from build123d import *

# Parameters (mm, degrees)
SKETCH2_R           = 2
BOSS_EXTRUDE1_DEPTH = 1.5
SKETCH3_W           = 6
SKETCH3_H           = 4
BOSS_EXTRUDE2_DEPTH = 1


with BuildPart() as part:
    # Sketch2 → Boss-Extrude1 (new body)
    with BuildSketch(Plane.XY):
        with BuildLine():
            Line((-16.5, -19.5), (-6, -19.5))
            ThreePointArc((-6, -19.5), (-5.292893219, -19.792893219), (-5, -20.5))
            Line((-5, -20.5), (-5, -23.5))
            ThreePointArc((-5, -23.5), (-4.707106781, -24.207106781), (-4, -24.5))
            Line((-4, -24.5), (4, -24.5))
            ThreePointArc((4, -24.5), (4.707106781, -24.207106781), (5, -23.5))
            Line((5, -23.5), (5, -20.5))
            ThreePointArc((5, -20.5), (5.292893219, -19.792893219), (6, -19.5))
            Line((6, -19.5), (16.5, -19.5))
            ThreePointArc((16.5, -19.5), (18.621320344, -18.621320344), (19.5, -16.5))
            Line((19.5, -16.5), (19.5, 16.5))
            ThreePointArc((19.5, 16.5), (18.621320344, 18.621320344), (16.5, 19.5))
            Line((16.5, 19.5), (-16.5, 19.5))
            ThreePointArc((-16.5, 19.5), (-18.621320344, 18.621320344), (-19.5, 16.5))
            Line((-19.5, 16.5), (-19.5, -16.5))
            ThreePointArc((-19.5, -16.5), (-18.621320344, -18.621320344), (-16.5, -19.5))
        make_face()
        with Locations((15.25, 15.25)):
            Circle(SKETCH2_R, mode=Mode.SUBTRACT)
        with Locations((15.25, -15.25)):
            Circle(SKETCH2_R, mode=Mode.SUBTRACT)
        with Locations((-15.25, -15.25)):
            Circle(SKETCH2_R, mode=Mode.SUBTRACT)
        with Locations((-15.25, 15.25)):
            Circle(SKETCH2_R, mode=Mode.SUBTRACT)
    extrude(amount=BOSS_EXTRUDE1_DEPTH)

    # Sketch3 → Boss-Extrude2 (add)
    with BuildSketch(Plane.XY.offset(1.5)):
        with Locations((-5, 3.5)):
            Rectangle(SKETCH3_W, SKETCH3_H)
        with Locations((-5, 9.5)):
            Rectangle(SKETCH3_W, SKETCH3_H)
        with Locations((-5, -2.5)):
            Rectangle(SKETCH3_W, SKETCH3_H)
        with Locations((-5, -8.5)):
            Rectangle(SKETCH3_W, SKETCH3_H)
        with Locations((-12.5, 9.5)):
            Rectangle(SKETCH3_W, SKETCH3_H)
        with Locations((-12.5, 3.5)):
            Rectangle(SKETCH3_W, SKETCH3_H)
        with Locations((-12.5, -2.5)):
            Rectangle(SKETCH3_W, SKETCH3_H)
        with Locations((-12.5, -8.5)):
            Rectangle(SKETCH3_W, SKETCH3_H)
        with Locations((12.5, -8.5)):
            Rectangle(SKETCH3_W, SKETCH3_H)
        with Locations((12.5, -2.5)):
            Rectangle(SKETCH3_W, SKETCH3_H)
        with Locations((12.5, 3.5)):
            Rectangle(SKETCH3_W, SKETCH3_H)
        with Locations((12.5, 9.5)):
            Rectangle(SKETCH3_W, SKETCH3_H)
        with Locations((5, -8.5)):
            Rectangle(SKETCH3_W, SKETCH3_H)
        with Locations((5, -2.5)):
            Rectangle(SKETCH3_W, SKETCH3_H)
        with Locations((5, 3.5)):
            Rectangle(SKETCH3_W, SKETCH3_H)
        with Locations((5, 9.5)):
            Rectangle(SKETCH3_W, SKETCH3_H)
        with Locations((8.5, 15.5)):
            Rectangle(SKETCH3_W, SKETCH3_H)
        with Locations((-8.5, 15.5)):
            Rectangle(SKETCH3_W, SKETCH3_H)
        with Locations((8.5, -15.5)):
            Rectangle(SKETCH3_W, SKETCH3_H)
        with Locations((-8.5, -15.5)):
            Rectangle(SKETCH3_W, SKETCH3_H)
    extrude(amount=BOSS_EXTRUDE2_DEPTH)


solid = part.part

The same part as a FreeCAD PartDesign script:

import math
import FreeCAD as App
import Part
import Sketcher
Q = App.Units.Quantity


def add_polygon(sketch, points):
    """Adds a closed chain of lines whose ends are joined by coincident constraints."""
    first, n = sketch.GeometryCount, len(points)
    for a, b in zip(points, points[1:] + points[:1]):
        sketch.addGeometry(Part.LineSegment(App.Vector(*a, 0), App.Vector(*b, 0)), False)
    for i in range(n):
        sketch.addConstraint(Sketcher.Constraint("Coincident", first + i, 2, first + (i + 1) % n, 1))

doc = App.newDocument("Part")
body = doc.addObject("PartDesign::Body", "Body")

# Sketch on XY plane
sketch1 = body.newObject("Sketcher::SketchObject", "Sketch")
sketch1.AttachmentSupport = (doc.getObject("XY_Plane"), [""])
sketch1.MapMode = "FlatFace"
sketch1.addGeometry(Part.LineSegment(App.Vector(-16.5, -19.5, 0), App.Vector(-6, -19.5, 0)), False)
sketch1.addGeometry(Part.ArcOfCircle(Part.Circle(App.Vector(-6, -20.5, 0), App.Vector(0, 0, 1), 1), math.radians(0), math.radians(90)), False)
sketch1.addGeometry(Part.LineSegment(App.Vector(-5, -20.5, 0), App.Vector(-5, -23.5, 0)), False)
sketch1.addGeometry(Part.ArcOfCircle(Part.Circle(App.Vector(-4, -23.5, 0), App.Vector(0, 0, 1), 1), math.radians(-180), math.radians(-90)), False)
sketch1.addGeometry(Part.LineSegment(App.Vector(-4, -24.5, 0), App.Vector(4, -24.5, 0)), False)
sketch1.addGeometry(Part.ArcOfCircle(Part.Circle(App.Vector(4, -23.5, 0), App.Vector(0, 0, 1), 1), math.radians(-90), math.radians(0)), False)
sketch1.addGeometry(Part.LineSegment(App.Vector(5, -23.5, 0), App.Vector(5, -20.5, 0)), False)
sketch1.addGeometry(Part.ArcOfCircle(Part.Circle(App.Vector(6, -20.5, 0), App.Vector(0, 0, 1), 1), math.radians(90), math.radians(180)), False)
sketch1.addGeometry(Part.LineSegment(App.Vector(6, -19.5, 0), App.Vector(16.5, -19.5, 0)), False)
sketch1.addGeometry(Part.ArcOfCircle(Part.Circle(App.Vector(16.5, -16.5, 0), App.Vector(0, 0, 1), 3), math.radians(-90), math.radians(0)), False)
sketch1.addGeometry(Part.LineSegment(App.Vector(19.5, -16.5, 0), App.Vector(19.5, 16.5, 0)), False)
sketch1.addGeometry(Part.ArcOfCircle(Part.Circle(App.Vector(16.5, 16.5, 0), App.Vector(0, 0, 1), 3), math.radians(0), math.radians(90)), False)
sketch1.addGeometry(Part.LineSegment(App.Vector(16.5, 19.5, 0), App.Vector(-16.5, 19.5, 0)), False)
sketch1.addGeometry(Part.ArcOfCircle(Part.Circle(App.Vector(-16.5, 16.5, 0), App.Vector(0, 0, 1), 3), math.radians(90), math.radians(180)), False)
sketch1.addGeometry(Part.LineSegment(App.Vector(-19.5, 16.5, 0), App.Vector(-19.5, -16.5, 0)), False)
sketch1.addGeometry(Part.ArcOfCircle(Part.Circle(App.Vector(-16.5, -16.5, 0), App.Vector(0, 0, 1), 3), math.radians(180), math.radians(270)), False)
sketch1.addGeometry(Part.Circle(App.Vector(-15.25, -15.25, 0), App.Vector(0, 0, 1), 2), False)
sketch1.addGeometry(Part.Circle(App.Vector(15.25, -15.25, 0), App.Vector(0, 0, 1), 2), False)
sketch1.addGeometry(Part.Circle(App.Vector(-15.25, 15.25, 0), App.Vector(0, 0, 1), 2), False)
sketch1.addGeometry(Part.Circle(App.Vector(15.25, 15.25, 0), App.Vector(0, 0, 1), 2), False)
sketch1.addConstraint(Sketcher.Constraint("Tangent", 0, 2, 1, 2))
sketch1.addConstraint(Sketcher.Constraint("Tangent", 1, 1, 2, 1))
sketch1.addConstraint(Sketcher.Constraint("Tangent", 2, 2, 3, 1))
sketch1.addConstraint(Sketcher.Constraint("Tangent", 3, 2, 4, 1))
sketch1.addConstraint(Sketcher.Constraint("Tangent", 4, 2, 5, 1))
sketch1.addConstraint(Sketcher.Constraint("Tangent", 5, 2, 6, 1))
sketch1.addConstraint(Sketcher.Constraint("Tangent", 6, 2, 7, 2))
sketch1.addConstraint(Sketcher.Constraint("Tangent", 7, 1, 8, 1))
sketch1.addConstraint(Sketcher.Constraint("Tangent", 8, 2, 9, 1))
sketch1.addConstraint(Sketcher.Constraint("Tangent", 9, 2, 10, 1))
sketch1.addConstraint(Sketcher.Constraint("Tangent", 10, 2, 11, 1))
sketch1.addConstraint(Sketcher.Constraint("Tangent", 11, 2, 12, 1))
sketch1.addConstraint(Sketcher.Constraint("Tangent", 12, 2, 13, 1))
sketch1.addConstraint(Sketcher.Constraint("Tangent", 13, 2, 14, 1))
sketch1.addConstraint(Sketcher.Constraint("Tangent", 14, 2, 15, 1))
sketch1.addConstraint(Sketcher.Constraint("Tangent", 15, 2, 0, 1))
sketch1.addConstraint(Sketcher.Constraint("Horizontal", 0))
sketch1.addConstraint(Sketcher.Constraint("Vertical", 2))
sketch1.addConstraint(Sketcher.Constraint("Horizontal", 4))
sketch1.addConstraint(Sketcher.Constraint("Vertical", 6))
sketch1.addConstraint(Sketcher.Constraint("Horizontal", 8))
sketch1.addConstraint(Sketcher.Constraint("Vertical", 10))
sketch1.addConstraint(Sketcher.Constraint("Horizontal", 12))
sketch1.addConstraint(Sketcher.Constraint("Vertical", 14))
sketch1.addConstraint(Sketcher.Constraint("Equal", 1, 3))
sketch1.addConstraint(Sketcher.Constraint("Equal", 3, 5))
sketch1.addConstraint(Sketcher.Constraint("Equal", 5, 7))
sketch1.addConstraint(Sketcher.Constraint("Equal", 9, 11))
sketch1.addConstraint(Sketcher.Constraint("Equal", 11, 13))
sketch1.addConstraint(Sketcher.Constraint("Equal", 13, 15))
sketch1.addConstraint(Sketcher.Constraint("Equal", 16, 17))
sketch1.addConstraint(Sketcher.Constraint("Equal", 17, 18))
sketch1.addConstraint(Sketcher.Constraint("Equal", 18, 19))
sketch1.addConstraint(Sketcher.Constraint("Symmetric", 9, 3, 13, 3, -1, 1))
sketch1.addConstraint(Sketcher.Constraint("Symmetric", 17, 3, 18, 3, -1, 1))
sketch1.addConstraint(Sketcher.Constraint("Symmetric", 16, 3, 19, 3, -1, 1))
sketch1.addConstraint(Sketcher.Constraint("Symmetric", 1, 3, 7, 3, -2))
sketch1.addConstraint(Sketcher.Constraint("Symmetric", 16, 3, 17, 3, -2))
sketch1.addConstraint(Sketcher.Constraint("Equal", 12, 10))
sketch1.addConstraint(Sketcher.Constraint("Diameter", 16, Q("4 mm")))
sketch1.addConstraint(Sketcher.Constraint("Radius", 1, Q("1 mm")))
sketch1.addConstraint(Sketcher.Constraint("Radius", 9, Q("3 mm")))
sketch1.addConstraint(Sketcher.Constraint("DistanceX", 4, 1, 4, 2, Q("8 mm")))
sketch1.addConstraint(Sketcher.Constraint("DistanceX", 12, 2, 12, 1, Q("33 mm")))
sketch1.addConstraint(Sketcher.Constraint("DistanceY", 2, 2, 2, 1, Q("3 mm")))
sketch1.addConstraint(Sketcher.Constraint("DistanceY", 16, 3, 18, 3, Q("30.5 mm")))
sketch1.addConstraint(Sketcher.Constraint("DistanceX", 18, 3, 19, 3, Q("30.5 mm")))
pad1 = body.newObject("PartDesign::Pad", "Pad")
pad1.Profile = sketch1
pad1.Length = 1.5

# Sketch on XY plane
sketch2 = body.newObject("Sketcher::SketchObject", "Sketch001")
sketch2.AttachmentSupport = (doc.getObject("XY_Plane"), [""])
sketch2.MapMode = "FlatFace"
sketch2.AttachmentOffset = App.Placement(App.Vector(0, 0, 1.5), App.Rotation())
add_polygon(sketch2, [(-8, 5.5), (-8, 1.5), (-2, 1.5), (-2, 5.5)])  # lines 0-3
add_polygon(sketch2, [(-8, 11.5), (-8, 7.5), (-2, 7.5), (-2, 11.5)])  # lines 4-7
add_polygon(sketch2, [(-8, -0.5), (-8, -4.5), (-2, -4.5), (-2, -0.5)])  # lines 8-11
add_polygon(sketch2, [(-8, -6.5), (-8, -10.5), (-2, -10.5), (-2, -6.5)])  # lines 12-15
add_polygon(sketch2, [(-15.5, 11.5), (-15.5, 7.5), (-9.5, 7.5), (-9.5, 11.5)])  # lines 16-19
add_polygon(sketch2, [(-15.5, 5.5), (-15.5, 1.5), (-9.5, 1.5), (-9.5, 5.5)])  # lines 20-23
add_polygon(sketch2, [(-15.5, -0.5), (-15.5, -4.5), (-9.5, -4.5), (-9.5, -0.5)])  # lines 24-27
add_polygon(sketch2, [(-15.5, -6.5), (-15.5, -10.5), (-9.5, -10.5), (-9.5, -6.5)])  # lines 28-31
add_polygon(sketch2, [(9.5, -6.5), (9.5, -10.5), (15.5, -10.5), (15.5, -6.5)])  # lines 32-35
add_polygon(sketch2, [(9.5, -0.5), (9.5, -4.5), (15.5, -4.5), (15.5, -0.5)])  # lines 36-39
add_polygon(sketch2, [(9.5, 5.5), (9.5, 1.5), (15.5, 1.5), (15.5, 5.5)])  # lines 40-43
add_polygon(sketch2, [(9.5, 11.5), (9.5, 7.5), (15.5, 7.5), (15.5, 11.5)])  # lines 44-47
add_polygon(sketch2, [(2, -6.5), (2, -10.5), (8, -10.5), (8, -6.5)])  # lines 48-51
add_polygon(sketch2, [(2, -0.5), (2, -4.5), (8, -4.5), (8, -0.5)])  # lines 52-55
add_polygon(sketch2, [(2, 5.5), (2, 1.5), (8, 1.5), (8, 5.5)])  # lines 56-59
add_polygon(sketch2, [(2, 11.5), (2, 7.5), (8, 7.5), (8, 11.5)])  # lines 60-63
add_polygon(sketch2, [(5.5, 17.5), (5.5, 13.5), (11.5, 13.5), (11.5, 17.5)])  # lines 64-67
add_polygon(sketch2, [(-11.5, 17.5), (-11.5, 13.5), (-5.5, 13.5), (-5.5, 17.5)])  # lines 68-71
add_polygon(sketch2, [(5.5, -13.5), (5.5, -17.5), (11.5, -17.5), (11.5, -13.5)])  # lines 72-75
add_polygon(sketch2, [(-11.5, -13.5), (-11.5, -17.5), (-5.5, -17.5), (-5.5, -13.5)])  # lines 76-79
sketch2.addConstraint(Sketcher.Constraint("Vertical", 0))
sketch2.addConstraint(Sketcher.Constraint("Horizontal", 1))
sketch2.addConstraint(Sketcher.Constraint("Vertical", 2))
sketch2.addConstraint(Sketcher.Constraint("Horizontal", 3))
sketch2.addConstraint(Sketcher.Constraint("Vertical", 4))
sketch2.addConstraint(Sketcher.Constraint("Horizontal", 5))
sketch2.addConstraint(Sketcher.Constraint("Vertical", 6))
sketch2.addConstraint(Sketcher.Constraint("Horizontal", 7))
sketch2.addConstraint(Sketcher.Constraint("Vertical", 8))
sketch2.addConstraint(Sketcher.Constraint("Horizontal", 9))
sketch2.addConstraint(Sketcher.Constraint("Vertical", 10))
sketch2.addConstraint(Sketcher.Constraint("Horizontal", 11))
sketch2.addConstraint(Sketcher.Constraint("Vertical", 12))
sketch2.addConstraint(Sketcher.Constraint("Horizontal", 13))
sketch2.addConstraint(Sketcher.Constraint("Vertical", 14))
sketch2.addConstraint(Sketcher.Constraint("Horizontal", 15))
sketch2.addConstraint(Sketcher.Constraint("Vertical", 16))
sketch2.addConstraint(Sketcher.Constraint("Horizontal", 17))
sketch2.addConstraint(Sketcher.Constraint("Vertical", 18))
sketch2.addConstraint(Sketcher.Constraint("Horizontal", 19))
sketch2.addConstraint(Sketcher.Constraint("Vertical", 20))
sketch2.addConstraint(Sketcher.Constraint("Horizontal", 21))
sketch2.addConstraint(Sketcher.Constraint("Vertical", 22))
sketch2.addConstraint(Sketcher.Constraint("Horizontal", 23))
sketch2.addConstraint(Sketcher.Constraint("Vertical", 24))
sketch2.addConstraint(Sketcher.Constraint("Horizontal", 25))
sketch2.addConstraint(Sketcher.Constraint("Vertical", 26))
sketch2.addConstraint(Sketcher.Constraint("Horizontal", 27))
sketch2.addConstraint(Sketcher.Constraint("Vertical", 28))
sketch2.addConstraint(Sketcher.Constraint("Horizontal", 29))
sketch2.addConstraint(Sketcher.Constraint("Vertical", 30))
sketch2.addConstraint(Sketcher.Constraint("Horizontal", 31))
sketch2.addConstraint(Sketcher.Constraint("Vertical", 32))
sketch2.addConstraint(Sketcher.Constraint("Horizontal", 33))
sketch2.addConstraint(Sketcher.Constraint("Vertical", 34))
sketch2.addConstraint(Sketcher.Constraint("Horizontal", 35))
sketch2.addConstraint(Sketcher.Constraint("Vertical", 36))
sketch2.addConstraint(Sketcher.Constraint("Horizontal", 37))
sketch2.addConstraint(Sketcher.Constraint("Vertical", 38))
sketch2.addConstraint(Sketcher.Constraint("Horizontal", 39))
sketch2.addConstraint(Sketcher.Constraint("Vertical", 40))
sketch2.addConstraint(Sketcher.Constraint("Horizontal", 41))
sketch2.addConstraint(Sketcher.Constraint("Vertical", 42))
sketch2.addConstraint(Sketcher.Constraint("Horizontal", 43))
sketch2.addConstraint(Sketcher.Constraint("Vertical", 44))
sketch2.addConstraint(Sketcher.Constraint("Horizontal", 45))
sketch2.addConstraint(Sketcher.Constraint("Vertical", 46))
sketch2.addConstraint(Sketcher.Constraint("Horizontal", 47))
sketch2.addConstraint(Sketcher.Constraint("Vertical", 48))
sketch2.addConstraint(Sketcher.Constraint("Horizontal", 49))
sketch2.addConstraint(Sketcher.Constraint("Vertical", 50))
sketch2.addConstraint(Sketcher.Constraint("Horizontal", 51))
sketch2.addConstraint(Sketcher.Constraint("Vertical", 52))
sketch2.addConstraint(Sketcher.Constraint("Horizontal", 53))
sketch2.addConstraint(Sketcher.Constraint("Vertical", 54))
sketch2.addConstraint(Sketcher.Constraint("Horizontal", 55))
sketch2.addConstraint(Sketcher.Constraint("Vertical", 56))
sketch2.addConstraint(Sketcher.Constraint("Horizontal", 57))
sketch2.addConstraint(Sketcher.Constraint("Vertical", 58))
sketch2.addConstraint(Sketcher.Constraint("Horizontal", 59))
sketch2.addConstraint(Sketcher.Constraint("Vertical", 60))
sketch2.addConstraint(Sketcher.Constraint("Horizontal", 61))
sketch2.addConstraint(Sketcher.Constraint("Vertical", 62))
sketch2.addConstraint(Sketcher.Constraint("Horizontal", 63))
sketch2.addConstraint(Sketcher.Constraint("Vertical", 64))
sketch2.addConstraint(Sketcher.Constraint("Horizontal", 65))
sketch2.addConstraint(Sketcher.Constraint("Vertical", 66))
sketch2.addConstraint(Sketcher.Constraint("Horizontal", 67))
sketch2.addConstraint(Sketcher.Constraint("Vertical", 68))
sketch2.addConstraint(Sketcher.Constraint("Horizontal", 69))
sketch2.addConstraint(Sketcher.Constraint("Vertical", 70))
sketch2.addConstraint(Sketcher.Constraint("Horizontal", 71))
sketch2.addConstraint(Sketcher.Constraint("Vertical", 72))
sketch2.addConstraint(Sketcher.Constraint("Horizontal", 73))
sketch2.addConstraint(Sketcher.Constraint("Vertical", 74))
sketch2.addConstraint(Sketcher.Constraint("Horizontal", 75))
sketch2.addConstraint(Sketcher.Constraint("Vertical", 76))
sketch2.addConstraint(Sketcher.Constraint("Horizontal", 77))
sketch2.addConstraint(Sketcher.Constraint("Vertical", 78))
sketch2.addConstraint(Sketcher.Constraint("Horizontal", 79))
sketch2.addConstraint(Sketcher.Constraint("Symmetric", 70, 2, 72, 2, -1, 1))
sketch2.addConstraint(Sketcher.Constraint("Symmetric", 68, 2, 74, 2, -1, 1))
sketch2.addConstraint(Sketcher.Constraint("Symmetric", 66, 2, 76, 2, -1, 1))
sketch2.addConstraint(Sketcher.Constraint("Symmetric", 64, 2, 78, 2, -1, 1))
sketch2.addConstraint(Sketcher.Constraint("Symmetric", 29, 2, 32, 2, -2))
sketch2.addConstraint(Sketcher.Constraint("Symmetric", 31, 2, 34, 2, -2))
sketch2.addConstraint(Sketcher.Constraint("Symmetric", 25, 2, 36, 2, -2))
sketch2.addConstraint(Sketcher.Constraint("Symmetric", 27, 2, 38, 2, -2))
sketch2.addConstraint(Sketcher.Constraint("Symmetric", 21, 2, 40, 2, -2))
sketch2.addConstraint(Sketcher.Constraint("Symmetric", 23, 2, 42, 2, -2))
sketch2.addConstraint(Sketcher.Constraint("Symmetric", 17, 2, 44, 2, -2))
sketch2.addConstraint(Sketcher.Constraint("Symmetric", 19, 2, 46, 2, -2))
sketch2.addConstraint(Sketcher.Constraint("Symmetric", 13, 2, 48, 2, -2))
sketch2.addConstraint(Sketcher.Constraint("Symmetric", 15, 2, 50, 2, -2))
sketch2.addConstraint(Sketcher.Constraint("Symmetric", 9, 2, 52, 2, -2))
sketch2.addConstraint(Sketcher.Constraint("Symmetric", 11, 2, 54, 2, -2))
sketch2.addConstraint(Sketcher.Constraint("Symmetric", 1, 2, 56, 2, -2))
sketch2.addConstraint(Sketcher.Constraint("Symmetric", 3, 2, 58, 2, -2))
sketch2.addConstraint(Sketcher.Constraint("Symmetric", 5, 2, 60, 2, -2))
sketch2.addConstraint(Sketcher.Constraint("Symmetric", 7, 2, 62, 2, -2))
sketch2.addConstraint(Sketcher.Constraint("Symmetric", 65, 2, 68, 2, -2))
sketch2.addConstraint(Sketcher.Constraint("Symmetric", 67, 2, 70, 2, -2))
sketch2.addConstraint(Sketcher.Constraint("Horizontal", 5, 2, 16, 2))
sketch2.addConstraint(Sketcher.Constraint("Horizontal", 7, 2, 18, 2))
sketch2.addConstraint(Sketcher.Constraint("Horizontal", 1, 2, 20, 2))
sketch2.addConstraint(Sketcher.Constraint("Horizontal", 3, 2, 22, 2))
sketch2.addConstraint(Sketcher.Constraint("Horizontal", 9, 2, 24, 2))
sketch2.addConstraint(Sketcher.Constraint("Horizontal", 11, 2, 26, 2))
sketch2.addConstraint(Sketcher.Constraint("Horizontal", 13, 2, 28, 2))
sketch2.addConstraint(Sketcher.Constraint("Horizontal", 15, 2, 30, 2))
sketch2.addConstraint(Sketcher.Constraint("Vertical", 3, 2, 4, 2))
sketch2.addConstraint(Sketcher.Constraint("Vertical", 2, 2, 5, 2))
sketch2.addConstraint(Sketcher.Constraint("Vertical", 7, 2, 8, 2))
sketch2.addConstraint(Sketcher.Constraint("Vertical", 6, 2, 9, 2))
sketch2.addConstraint(Sketcher.Constraint("Vertical", 11, 2, 12, 2))
sketch2.addConstraint(Sketcher.Constraint("Vertical", 10, 2, 13, 2))
sketch2.addConstraint(Sketcher.Constraint("Vertical", 19, 2, 20, 2))
sketch2.addConstraint(Sketcher.Constraint("Vertical", 18, 2, 21, 2))
sketch2.addConstraint(Sketcher.Constraint("Vertical", 23, 2, 24, 2))
sketch2.addConstraint(Sketcher.Constraint("Vertical", 22, 2, 25, 2))
sketch2.addConstraint(Sketcher.Constraint("Vertical", 27, 2, 28, 2))
sketch2.addConstraint(Sketcher.Constraint("Vertical", 26, 2, 29, 2))
sketch2.addConstraint(Sketcher.Constraint("Equal", 15, 17))
sketch2.addConstraint(Sketcher.Constraint("Equal", 63, 65))
sketch2.addConstraint(Sketcher.Constraint("Equal", 2, 4))
sketch2.addConstraint(Sketcher.Constraint("Equal", 6, 8))
sketch2.addConstraint(Sketcher.Constraint("Equal", 10, 12))
sketch2.addConstraint(Sketcher.Constraint("Equal", 62, 64))
sketch2.addConstraint(Sketcher.Constraint("DistanceX", 1, 1, 1, 2, Q("6 mm")))
sketch2.addConstraint(Sketcher.Constraint("DistanceY", 0, 2, 0, 1, Q("4 mm")))
sketch2.addConstraint(Sketcher.Constraint("DistanceX", 0, 2, -1, 1, Q("8 mm")))
sketch2.addConstraint(Sketcher.Constraint("DistanceY", -1, 1, 0, 2, Q("1.5 mm")))
sketch2.addConstraint(Sketcher.Constraint("DistanceY", -1, 1, 4, 2, Q("7.5 mm")))
sketch2.addConstraint(Sketcher.Constraint("DistanceY", 8, 2, -1, 1, Q("4.5 mm")))
sketch2.addConstraint(Sketcher.Constraint("DistanceY", 12, 2, -1, 1, Q("10.5 mm")))
sketch2.addConstraint(Sketcher.Constraint("DistanceX", 16, 2, -1, 1, Q("15.5 mm")))
sketch2.addConstraint(Sketcher.Constraint("DistanceX", -1, 1, 64, 2, Q("5.5 mm")))
sketch2.addConstraint(Sketcher.Constraint("DistanceY", -1, 1, 64, 2, Q("13.5 mm")))
pad2 = body.newObject("PartDesign::Pad", "Pad001")
pad2.Profile = sketch2
pad2.Length = 1

doc.recompute()
